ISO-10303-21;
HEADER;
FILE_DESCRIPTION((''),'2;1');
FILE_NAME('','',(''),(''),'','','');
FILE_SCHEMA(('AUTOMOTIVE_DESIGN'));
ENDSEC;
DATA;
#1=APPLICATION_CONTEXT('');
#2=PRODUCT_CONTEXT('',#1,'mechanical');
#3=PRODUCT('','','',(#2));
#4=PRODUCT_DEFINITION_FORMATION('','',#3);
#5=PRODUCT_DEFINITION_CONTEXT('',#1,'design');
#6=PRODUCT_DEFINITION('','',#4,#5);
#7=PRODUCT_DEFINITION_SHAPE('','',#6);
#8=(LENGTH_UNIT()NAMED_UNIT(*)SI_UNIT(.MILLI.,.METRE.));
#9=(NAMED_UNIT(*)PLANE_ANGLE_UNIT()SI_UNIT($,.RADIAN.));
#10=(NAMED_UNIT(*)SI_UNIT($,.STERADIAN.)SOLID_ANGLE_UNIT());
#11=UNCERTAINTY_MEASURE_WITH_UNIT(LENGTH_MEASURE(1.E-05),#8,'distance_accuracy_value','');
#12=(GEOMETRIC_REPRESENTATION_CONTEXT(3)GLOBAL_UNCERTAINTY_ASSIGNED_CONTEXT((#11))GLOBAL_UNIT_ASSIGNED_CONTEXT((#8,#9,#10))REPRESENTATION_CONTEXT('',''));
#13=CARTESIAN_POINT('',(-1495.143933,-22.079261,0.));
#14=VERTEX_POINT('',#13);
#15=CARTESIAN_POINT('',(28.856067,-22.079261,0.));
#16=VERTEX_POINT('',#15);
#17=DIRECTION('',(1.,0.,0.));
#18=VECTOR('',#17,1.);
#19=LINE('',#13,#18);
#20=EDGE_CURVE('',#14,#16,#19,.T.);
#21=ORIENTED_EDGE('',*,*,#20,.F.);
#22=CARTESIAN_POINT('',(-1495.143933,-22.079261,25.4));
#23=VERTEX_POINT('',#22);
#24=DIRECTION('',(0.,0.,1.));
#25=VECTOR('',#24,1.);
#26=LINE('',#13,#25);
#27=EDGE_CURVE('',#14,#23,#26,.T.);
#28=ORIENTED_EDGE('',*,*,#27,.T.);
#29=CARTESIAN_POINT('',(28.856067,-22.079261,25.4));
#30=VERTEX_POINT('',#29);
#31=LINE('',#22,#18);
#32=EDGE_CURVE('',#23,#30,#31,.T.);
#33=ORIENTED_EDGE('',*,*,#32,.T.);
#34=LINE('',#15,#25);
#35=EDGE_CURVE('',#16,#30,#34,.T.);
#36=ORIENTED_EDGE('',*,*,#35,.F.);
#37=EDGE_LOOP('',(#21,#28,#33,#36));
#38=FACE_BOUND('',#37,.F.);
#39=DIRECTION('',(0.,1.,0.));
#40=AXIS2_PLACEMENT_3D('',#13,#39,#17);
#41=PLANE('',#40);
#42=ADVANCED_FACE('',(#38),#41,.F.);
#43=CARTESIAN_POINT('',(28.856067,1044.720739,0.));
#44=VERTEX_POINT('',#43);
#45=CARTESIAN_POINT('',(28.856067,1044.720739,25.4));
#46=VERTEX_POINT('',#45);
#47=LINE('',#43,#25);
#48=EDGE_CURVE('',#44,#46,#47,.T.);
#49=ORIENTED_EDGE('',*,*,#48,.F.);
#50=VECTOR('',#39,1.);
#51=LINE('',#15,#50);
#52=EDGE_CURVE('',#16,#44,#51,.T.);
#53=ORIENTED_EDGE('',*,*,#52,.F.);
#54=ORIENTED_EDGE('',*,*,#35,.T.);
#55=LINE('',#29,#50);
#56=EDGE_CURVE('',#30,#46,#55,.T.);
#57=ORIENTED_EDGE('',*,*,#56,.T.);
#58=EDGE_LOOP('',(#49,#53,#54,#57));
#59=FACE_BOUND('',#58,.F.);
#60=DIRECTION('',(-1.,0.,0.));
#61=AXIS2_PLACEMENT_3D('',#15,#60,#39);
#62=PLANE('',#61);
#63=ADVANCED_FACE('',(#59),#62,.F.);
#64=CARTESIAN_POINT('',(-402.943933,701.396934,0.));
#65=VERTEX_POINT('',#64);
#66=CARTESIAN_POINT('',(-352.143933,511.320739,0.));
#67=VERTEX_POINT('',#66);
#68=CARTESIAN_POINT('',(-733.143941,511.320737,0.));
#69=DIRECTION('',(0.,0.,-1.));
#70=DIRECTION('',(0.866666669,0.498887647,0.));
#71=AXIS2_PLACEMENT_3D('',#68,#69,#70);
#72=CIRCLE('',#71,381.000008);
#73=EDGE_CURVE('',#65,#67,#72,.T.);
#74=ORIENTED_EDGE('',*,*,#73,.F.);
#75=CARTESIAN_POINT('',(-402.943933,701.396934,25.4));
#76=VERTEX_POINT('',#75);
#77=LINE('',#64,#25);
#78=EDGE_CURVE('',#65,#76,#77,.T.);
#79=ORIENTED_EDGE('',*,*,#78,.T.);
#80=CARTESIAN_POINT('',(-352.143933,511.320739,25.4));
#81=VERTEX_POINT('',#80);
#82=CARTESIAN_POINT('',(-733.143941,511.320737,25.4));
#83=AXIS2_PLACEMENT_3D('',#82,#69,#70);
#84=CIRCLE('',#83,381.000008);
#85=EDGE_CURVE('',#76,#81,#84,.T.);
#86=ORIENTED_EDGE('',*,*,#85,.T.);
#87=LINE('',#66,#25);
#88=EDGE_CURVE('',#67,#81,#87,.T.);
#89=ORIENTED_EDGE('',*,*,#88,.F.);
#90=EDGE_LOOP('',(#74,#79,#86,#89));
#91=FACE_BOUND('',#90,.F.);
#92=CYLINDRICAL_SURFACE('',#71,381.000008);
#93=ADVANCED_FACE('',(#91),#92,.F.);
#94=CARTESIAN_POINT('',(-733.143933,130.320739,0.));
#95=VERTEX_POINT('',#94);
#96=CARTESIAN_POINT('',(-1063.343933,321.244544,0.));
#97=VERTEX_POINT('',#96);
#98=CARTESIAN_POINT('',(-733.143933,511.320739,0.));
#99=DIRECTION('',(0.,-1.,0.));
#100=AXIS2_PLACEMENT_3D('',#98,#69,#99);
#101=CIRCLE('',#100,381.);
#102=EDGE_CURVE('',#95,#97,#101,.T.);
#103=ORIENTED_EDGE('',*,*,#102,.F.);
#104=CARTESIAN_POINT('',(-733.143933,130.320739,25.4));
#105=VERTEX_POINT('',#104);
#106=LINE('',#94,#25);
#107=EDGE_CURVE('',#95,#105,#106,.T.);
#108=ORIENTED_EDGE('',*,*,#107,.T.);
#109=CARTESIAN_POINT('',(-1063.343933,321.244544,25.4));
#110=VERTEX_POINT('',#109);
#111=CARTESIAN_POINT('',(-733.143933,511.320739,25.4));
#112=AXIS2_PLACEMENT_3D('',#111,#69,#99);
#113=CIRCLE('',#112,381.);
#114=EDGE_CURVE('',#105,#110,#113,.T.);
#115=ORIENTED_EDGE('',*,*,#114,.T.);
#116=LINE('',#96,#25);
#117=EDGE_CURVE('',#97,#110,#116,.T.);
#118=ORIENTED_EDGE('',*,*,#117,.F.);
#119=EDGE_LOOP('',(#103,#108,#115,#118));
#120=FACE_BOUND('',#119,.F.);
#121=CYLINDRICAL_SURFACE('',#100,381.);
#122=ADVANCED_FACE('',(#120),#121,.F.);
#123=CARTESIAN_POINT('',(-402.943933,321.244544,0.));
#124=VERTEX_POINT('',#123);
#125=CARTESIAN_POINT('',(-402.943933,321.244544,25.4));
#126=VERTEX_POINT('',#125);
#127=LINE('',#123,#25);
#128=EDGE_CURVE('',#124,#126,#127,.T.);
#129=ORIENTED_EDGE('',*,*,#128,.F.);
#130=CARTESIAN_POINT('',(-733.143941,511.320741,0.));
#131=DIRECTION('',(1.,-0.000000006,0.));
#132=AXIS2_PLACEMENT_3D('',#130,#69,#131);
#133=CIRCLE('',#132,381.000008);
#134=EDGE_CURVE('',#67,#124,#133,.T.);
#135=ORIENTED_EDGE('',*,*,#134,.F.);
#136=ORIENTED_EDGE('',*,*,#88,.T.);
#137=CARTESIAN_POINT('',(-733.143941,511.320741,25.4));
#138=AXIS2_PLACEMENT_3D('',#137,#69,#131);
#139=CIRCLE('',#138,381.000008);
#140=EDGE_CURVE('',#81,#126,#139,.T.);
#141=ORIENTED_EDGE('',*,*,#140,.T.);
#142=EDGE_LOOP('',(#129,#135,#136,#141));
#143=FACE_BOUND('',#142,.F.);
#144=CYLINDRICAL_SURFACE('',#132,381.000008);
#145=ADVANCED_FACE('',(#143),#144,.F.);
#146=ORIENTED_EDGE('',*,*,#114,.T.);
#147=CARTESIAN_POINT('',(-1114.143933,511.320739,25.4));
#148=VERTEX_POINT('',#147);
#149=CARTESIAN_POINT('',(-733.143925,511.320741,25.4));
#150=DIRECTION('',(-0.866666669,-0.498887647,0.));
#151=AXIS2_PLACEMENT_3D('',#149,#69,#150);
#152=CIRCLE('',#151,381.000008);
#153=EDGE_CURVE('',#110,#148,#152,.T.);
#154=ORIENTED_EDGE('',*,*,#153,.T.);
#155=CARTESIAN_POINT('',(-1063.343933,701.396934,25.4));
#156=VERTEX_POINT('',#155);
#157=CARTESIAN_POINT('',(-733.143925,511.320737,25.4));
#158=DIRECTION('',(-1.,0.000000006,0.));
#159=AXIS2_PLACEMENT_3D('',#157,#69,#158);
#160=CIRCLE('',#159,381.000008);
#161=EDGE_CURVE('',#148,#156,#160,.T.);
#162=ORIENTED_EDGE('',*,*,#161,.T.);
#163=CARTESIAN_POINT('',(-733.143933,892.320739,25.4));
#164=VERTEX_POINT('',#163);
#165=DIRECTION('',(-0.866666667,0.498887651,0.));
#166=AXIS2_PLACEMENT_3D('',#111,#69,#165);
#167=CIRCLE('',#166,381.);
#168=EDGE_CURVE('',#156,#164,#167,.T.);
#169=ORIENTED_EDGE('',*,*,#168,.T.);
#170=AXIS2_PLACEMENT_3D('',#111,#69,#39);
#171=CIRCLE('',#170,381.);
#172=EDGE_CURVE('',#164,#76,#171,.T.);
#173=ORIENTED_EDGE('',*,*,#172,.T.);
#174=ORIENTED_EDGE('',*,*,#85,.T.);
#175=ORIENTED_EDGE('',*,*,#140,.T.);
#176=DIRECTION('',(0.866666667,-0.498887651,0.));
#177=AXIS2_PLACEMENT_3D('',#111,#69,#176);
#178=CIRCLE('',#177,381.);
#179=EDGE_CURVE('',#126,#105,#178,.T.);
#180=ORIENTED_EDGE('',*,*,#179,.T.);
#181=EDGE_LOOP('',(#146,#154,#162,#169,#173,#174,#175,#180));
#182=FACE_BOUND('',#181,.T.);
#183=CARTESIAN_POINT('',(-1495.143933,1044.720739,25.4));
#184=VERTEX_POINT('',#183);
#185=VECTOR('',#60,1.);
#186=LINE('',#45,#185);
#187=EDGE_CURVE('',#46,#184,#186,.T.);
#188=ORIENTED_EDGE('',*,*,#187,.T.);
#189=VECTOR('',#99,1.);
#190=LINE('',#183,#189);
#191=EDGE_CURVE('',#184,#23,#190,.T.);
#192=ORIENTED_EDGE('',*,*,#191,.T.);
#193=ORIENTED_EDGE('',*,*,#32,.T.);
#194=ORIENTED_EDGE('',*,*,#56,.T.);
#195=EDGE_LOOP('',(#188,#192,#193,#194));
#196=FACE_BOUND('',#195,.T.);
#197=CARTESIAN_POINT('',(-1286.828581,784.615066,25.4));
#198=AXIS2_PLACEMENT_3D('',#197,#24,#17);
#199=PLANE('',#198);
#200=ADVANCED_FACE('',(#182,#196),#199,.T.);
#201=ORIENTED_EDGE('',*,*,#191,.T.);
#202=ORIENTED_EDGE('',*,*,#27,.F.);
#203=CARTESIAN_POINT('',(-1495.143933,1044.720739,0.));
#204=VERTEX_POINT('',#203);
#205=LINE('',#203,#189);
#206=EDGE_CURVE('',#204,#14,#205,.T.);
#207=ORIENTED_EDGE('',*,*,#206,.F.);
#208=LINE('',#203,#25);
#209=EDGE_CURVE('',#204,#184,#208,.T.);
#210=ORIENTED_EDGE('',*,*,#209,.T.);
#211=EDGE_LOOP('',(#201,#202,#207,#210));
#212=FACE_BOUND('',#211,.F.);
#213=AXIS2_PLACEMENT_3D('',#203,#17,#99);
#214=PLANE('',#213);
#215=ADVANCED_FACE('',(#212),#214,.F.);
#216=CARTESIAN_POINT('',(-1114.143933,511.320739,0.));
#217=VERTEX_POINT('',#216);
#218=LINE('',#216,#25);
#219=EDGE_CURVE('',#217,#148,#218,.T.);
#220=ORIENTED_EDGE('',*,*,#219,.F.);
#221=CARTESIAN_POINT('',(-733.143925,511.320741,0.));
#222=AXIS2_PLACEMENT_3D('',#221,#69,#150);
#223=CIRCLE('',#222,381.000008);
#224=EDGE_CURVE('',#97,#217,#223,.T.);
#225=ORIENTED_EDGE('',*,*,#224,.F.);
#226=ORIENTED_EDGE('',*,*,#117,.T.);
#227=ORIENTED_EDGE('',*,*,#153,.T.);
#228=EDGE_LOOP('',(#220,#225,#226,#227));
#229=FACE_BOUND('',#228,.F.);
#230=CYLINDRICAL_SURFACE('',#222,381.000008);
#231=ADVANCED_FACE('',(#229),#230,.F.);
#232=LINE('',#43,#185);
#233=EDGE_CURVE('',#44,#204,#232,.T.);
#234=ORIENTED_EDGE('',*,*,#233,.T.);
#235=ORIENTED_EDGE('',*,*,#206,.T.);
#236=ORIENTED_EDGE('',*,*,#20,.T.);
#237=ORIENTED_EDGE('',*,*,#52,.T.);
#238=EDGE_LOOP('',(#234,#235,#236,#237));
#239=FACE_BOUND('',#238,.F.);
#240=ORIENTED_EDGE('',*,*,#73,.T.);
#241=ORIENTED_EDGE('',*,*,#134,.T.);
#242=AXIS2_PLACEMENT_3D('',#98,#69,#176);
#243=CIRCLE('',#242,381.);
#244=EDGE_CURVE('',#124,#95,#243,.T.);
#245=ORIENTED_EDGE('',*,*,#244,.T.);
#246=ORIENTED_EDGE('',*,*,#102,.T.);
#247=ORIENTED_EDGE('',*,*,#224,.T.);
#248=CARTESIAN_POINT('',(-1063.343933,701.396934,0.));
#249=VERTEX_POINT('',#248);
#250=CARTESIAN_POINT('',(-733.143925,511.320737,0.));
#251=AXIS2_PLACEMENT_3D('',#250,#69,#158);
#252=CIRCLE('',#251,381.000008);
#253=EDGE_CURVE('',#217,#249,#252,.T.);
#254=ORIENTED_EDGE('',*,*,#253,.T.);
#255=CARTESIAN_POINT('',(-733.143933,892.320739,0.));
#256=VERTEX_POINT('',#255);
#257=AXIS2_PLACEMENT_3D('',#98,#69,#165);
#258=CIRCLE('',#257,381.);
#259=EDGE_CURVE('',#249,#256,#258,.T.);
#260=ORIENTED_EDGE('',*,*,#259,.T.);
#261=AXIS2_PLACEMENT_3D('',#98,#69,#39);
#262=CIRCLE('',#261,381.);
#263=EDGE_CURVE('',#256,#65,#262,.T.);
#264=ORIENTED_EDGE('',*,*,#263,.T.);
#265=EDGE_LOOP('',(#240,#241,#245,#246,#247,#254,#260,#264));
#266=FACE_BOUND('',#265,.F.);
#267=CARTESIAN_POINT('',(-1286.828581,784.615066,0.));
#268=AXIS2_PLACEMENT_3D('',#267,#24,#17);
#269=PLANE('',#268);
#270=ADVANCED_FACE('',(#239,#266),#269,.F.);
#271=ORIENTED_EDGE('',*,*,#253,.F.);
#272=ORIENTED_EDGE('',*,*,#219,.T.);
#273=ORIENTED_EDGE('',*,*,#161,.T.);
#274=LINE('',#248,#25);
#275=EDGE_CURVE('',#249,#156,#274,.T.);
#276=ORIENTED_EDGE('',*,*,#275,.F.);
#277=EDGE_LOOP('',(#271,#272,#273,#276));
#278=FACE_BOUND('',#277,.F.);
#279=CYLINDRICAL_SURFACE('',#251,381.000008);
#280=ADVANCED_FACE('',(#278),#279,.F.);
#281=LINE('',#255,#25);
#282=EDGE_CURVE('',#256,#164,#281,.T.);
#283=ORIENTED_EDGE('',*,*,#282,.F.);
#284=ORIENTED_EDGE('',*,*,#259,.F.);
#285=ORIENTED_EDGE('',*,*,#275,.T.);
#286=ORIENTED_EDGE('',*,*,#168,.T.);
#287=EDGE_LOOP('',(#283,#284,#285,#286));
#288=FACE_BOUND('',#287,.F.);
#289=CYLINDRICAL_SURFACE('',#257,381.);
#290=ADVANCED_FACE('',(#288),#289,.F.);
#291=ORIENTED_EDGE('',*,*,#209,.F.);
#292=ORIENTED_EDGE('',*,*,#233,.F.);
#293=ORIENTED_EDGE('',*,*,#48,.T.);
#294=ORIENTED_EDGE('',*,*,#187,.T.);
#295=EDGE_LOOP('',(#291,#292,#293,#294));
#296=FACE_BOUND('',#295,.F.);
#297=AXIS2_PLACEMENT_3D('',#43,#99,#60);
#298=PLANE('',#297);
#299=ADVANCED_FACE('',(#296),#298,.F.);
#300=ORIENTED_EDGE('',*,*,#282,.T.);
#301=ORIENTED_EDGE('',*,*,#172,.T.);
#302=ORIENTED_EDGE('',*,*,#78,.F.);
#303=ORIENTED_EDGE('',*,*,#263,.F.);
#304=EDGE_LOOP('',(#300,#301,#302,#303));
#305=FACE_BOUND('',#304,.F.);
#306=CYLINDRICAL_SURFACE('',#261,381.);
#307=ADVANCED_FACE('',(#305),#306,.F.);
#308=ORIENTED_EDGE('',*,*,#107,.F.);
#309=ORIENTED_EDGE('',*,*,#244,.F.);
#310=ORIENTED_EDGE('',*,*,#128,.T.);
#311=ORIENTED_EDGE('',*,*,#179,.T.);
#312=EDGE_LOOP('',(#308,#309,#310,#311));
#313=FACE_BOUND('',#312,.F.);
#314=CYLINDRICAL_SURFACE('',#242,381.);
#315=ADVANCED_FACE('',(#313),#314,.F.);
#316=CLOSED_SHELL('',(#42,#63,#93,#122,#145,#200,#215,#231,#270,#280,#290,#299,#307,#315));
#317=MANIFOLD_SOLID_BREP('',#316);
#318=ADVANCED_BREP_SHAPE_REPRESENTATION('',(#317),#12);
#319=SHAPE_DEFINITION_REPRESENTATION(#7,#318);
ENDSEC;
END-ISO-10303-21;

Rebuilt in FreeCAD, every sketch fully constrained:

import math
import FreeCAD as App
import Part
import Sketcher
Q = App.Units.Quantity

doc = App.newDocument("Part")
body = doc.addObject("PartDesign::Body", "Body")

sketch1 = doc.addObject("Sketcher::SketchObject", "Sketch")
body.addObject(sketch1)
sketch1.AttachmentSupport = (doc.XY_Plane, [""])
sketch1.MapMode = "FlatFace"
sketch1.addGeometry([
    Part.LineSegment(App.Vector(-1495, 1045, 0), App.Vector(-1495, -22, 0)),
    Part.LineSegment(App.Vector(-1495, -22, 0), App.Vector(29, -22, 0)),
    Part.LineSegment(App.Vector(29, -22, 0), App.Vector(29, 1045, 0)),
    Part.LineSegment(App.Vector(29, 1045, 0), App.Vector(-1495, 1045, 0)),
    Part.ArcOfCircle(Part.Circle(App.Vector(-733, 511, 0), App.Vector(0, 0, 1), 381), math.radians(-90), math.radians(-30)),
    Part.ArcOfCircle(Part.Circle(App.Vector(-733, 511, 0), App.Vector(0, 0, 1), 381), math.radians(-150), math.radians(-90)),
    Part.ArcOfCircle(Part.Circle(App.Vector(-733, 511, 0), App.Vector(0, 0, 1), 381), math.radians(-180), math.radians(-150)),
    Part.ArcOfCircle(Part.Circle(App.Vector(-733, 511, 0), App.Vector(0, 0, 1), 381), math.radians(150), math.radians(180)),
    Part.ArcOfCircle(Part.Circle(App.Vector(-733, 511, 0), App.Vector(0, 0, 1), 381), math.radians(90), math.radians(150)),
    Part.ArcOfCircle(Part.Circle(App.Vector(-733, 511, 0), App.Vector(0, 0, 1), 381), math.radians(30), math.radians(90)),
    Part.ArcOfCircle(Part.Circle(App.Vector(-733, 511, 0), App.Vector(0, 0, 1), 381), math.radians(0), math.radians(30)),
    Part.ArcOfCircle(Part.Circle(App.Vector(-733, 511, 0), App.Vector(0, 0, 1), 381), math.radians(-30), math.radians(0)),
], False)
sketch1.addConstraint([
    Sketcher.Constraint("Coincident", 0, 2, 1, 1),
    Sketcher.Constraint("Coincident", 1, 2, 2, 1),
    Sketcher.Constraint("Coincident", 2, 2, 3, 1),
    Sketcher.Constraint("Coincident", 3, 2, 0, 1),
    Sketcher.Constraint("Tangent", 4, 1, 5, 2),
    Sketcher.Constraint("Tangent", 5, 1, 6, 2),
    Sketcher.Constraint("Tangent", 6, 1, 7, 2),
    Sketcher.Constraint("Tangent", 7, 1, 8, 2),
    Sketcher.Constraint("Tangent", 8, 1, 9, 2),
    Sketcher.Constraint("Tangent", 9, 1, 10, 2),
    Sketcher.Constraint("Tangent", 10, 1, 11, 2),
    Sketcher.Constraint("Coincident", 11, 1, 4, 2),
    Sketcher.Constraint("Vertical", 0),
    Sketcher.Constraint("Horizontal", 1),
    Sketcher.Constraint("Vertical", 2),
    Sketcher.Constraint("Horizontal", 3),
    Sketcher.Constraint("Coincident", 6, 3, 4, 3),
    Sketcher.Constraint("Coincident", 8, 3, 4, 3),
    Sketcher.Constraint("Coincident", 10, 3, 4, 3),
    Sketcher.Constraint("Horizontal", 9, 3, 6, 1),
    Sketcher.Constraint("Horizontal", 7, 1, 9, 1),
    Sketcher.Constraint("Horizontal", 6, 1, 10, 1),
    Sketcher.Constraint("Horizontal", 5, 1, 11, 1),
    Sketcher.Constraint("Vertical", 9, 3, 4, 1),
    Sketcher.Constraint("Vertical", 5, 1, 7, 1),
    Sketcher.Constraint("Vertical", 4, 1, 8, 1),
    Sketcher.Constraint("Radius", 4, Q("15 in")),
    Sketcher.Constraint("DistanceX", 1, 1, 1, 2, Q("60 in")),
    Sketcher.Constraint("DistanceY", 0, 2, 0, 1, Q("42 in")),
    Sketcher.Constraint("DistanceY", 0, 2, 10, 3, Q("20.9999999 in")),
    Sketcher.Constraint("DistanceX", 0, 2, 4, 3, Q("30 in")),
    Sketcher.Constraint("DistanceX", 5, 1, 4, 3, Q("13 in")),
    Sketcher.Constraint("DistanceY", -1, 1, 4, 3, Q("511.320739 mm")),
    Sketcher.Constraint("DistanceX", 10, 3, -1, 1, Q("733.143941 mm")),
])
pad1 = doc.addObject("PartDesign::Pad", "Pad")
body.addObject(pad1)
pad1.Profile = sketch1
pad1.Length = Q("1 in")

doc.recompute()
